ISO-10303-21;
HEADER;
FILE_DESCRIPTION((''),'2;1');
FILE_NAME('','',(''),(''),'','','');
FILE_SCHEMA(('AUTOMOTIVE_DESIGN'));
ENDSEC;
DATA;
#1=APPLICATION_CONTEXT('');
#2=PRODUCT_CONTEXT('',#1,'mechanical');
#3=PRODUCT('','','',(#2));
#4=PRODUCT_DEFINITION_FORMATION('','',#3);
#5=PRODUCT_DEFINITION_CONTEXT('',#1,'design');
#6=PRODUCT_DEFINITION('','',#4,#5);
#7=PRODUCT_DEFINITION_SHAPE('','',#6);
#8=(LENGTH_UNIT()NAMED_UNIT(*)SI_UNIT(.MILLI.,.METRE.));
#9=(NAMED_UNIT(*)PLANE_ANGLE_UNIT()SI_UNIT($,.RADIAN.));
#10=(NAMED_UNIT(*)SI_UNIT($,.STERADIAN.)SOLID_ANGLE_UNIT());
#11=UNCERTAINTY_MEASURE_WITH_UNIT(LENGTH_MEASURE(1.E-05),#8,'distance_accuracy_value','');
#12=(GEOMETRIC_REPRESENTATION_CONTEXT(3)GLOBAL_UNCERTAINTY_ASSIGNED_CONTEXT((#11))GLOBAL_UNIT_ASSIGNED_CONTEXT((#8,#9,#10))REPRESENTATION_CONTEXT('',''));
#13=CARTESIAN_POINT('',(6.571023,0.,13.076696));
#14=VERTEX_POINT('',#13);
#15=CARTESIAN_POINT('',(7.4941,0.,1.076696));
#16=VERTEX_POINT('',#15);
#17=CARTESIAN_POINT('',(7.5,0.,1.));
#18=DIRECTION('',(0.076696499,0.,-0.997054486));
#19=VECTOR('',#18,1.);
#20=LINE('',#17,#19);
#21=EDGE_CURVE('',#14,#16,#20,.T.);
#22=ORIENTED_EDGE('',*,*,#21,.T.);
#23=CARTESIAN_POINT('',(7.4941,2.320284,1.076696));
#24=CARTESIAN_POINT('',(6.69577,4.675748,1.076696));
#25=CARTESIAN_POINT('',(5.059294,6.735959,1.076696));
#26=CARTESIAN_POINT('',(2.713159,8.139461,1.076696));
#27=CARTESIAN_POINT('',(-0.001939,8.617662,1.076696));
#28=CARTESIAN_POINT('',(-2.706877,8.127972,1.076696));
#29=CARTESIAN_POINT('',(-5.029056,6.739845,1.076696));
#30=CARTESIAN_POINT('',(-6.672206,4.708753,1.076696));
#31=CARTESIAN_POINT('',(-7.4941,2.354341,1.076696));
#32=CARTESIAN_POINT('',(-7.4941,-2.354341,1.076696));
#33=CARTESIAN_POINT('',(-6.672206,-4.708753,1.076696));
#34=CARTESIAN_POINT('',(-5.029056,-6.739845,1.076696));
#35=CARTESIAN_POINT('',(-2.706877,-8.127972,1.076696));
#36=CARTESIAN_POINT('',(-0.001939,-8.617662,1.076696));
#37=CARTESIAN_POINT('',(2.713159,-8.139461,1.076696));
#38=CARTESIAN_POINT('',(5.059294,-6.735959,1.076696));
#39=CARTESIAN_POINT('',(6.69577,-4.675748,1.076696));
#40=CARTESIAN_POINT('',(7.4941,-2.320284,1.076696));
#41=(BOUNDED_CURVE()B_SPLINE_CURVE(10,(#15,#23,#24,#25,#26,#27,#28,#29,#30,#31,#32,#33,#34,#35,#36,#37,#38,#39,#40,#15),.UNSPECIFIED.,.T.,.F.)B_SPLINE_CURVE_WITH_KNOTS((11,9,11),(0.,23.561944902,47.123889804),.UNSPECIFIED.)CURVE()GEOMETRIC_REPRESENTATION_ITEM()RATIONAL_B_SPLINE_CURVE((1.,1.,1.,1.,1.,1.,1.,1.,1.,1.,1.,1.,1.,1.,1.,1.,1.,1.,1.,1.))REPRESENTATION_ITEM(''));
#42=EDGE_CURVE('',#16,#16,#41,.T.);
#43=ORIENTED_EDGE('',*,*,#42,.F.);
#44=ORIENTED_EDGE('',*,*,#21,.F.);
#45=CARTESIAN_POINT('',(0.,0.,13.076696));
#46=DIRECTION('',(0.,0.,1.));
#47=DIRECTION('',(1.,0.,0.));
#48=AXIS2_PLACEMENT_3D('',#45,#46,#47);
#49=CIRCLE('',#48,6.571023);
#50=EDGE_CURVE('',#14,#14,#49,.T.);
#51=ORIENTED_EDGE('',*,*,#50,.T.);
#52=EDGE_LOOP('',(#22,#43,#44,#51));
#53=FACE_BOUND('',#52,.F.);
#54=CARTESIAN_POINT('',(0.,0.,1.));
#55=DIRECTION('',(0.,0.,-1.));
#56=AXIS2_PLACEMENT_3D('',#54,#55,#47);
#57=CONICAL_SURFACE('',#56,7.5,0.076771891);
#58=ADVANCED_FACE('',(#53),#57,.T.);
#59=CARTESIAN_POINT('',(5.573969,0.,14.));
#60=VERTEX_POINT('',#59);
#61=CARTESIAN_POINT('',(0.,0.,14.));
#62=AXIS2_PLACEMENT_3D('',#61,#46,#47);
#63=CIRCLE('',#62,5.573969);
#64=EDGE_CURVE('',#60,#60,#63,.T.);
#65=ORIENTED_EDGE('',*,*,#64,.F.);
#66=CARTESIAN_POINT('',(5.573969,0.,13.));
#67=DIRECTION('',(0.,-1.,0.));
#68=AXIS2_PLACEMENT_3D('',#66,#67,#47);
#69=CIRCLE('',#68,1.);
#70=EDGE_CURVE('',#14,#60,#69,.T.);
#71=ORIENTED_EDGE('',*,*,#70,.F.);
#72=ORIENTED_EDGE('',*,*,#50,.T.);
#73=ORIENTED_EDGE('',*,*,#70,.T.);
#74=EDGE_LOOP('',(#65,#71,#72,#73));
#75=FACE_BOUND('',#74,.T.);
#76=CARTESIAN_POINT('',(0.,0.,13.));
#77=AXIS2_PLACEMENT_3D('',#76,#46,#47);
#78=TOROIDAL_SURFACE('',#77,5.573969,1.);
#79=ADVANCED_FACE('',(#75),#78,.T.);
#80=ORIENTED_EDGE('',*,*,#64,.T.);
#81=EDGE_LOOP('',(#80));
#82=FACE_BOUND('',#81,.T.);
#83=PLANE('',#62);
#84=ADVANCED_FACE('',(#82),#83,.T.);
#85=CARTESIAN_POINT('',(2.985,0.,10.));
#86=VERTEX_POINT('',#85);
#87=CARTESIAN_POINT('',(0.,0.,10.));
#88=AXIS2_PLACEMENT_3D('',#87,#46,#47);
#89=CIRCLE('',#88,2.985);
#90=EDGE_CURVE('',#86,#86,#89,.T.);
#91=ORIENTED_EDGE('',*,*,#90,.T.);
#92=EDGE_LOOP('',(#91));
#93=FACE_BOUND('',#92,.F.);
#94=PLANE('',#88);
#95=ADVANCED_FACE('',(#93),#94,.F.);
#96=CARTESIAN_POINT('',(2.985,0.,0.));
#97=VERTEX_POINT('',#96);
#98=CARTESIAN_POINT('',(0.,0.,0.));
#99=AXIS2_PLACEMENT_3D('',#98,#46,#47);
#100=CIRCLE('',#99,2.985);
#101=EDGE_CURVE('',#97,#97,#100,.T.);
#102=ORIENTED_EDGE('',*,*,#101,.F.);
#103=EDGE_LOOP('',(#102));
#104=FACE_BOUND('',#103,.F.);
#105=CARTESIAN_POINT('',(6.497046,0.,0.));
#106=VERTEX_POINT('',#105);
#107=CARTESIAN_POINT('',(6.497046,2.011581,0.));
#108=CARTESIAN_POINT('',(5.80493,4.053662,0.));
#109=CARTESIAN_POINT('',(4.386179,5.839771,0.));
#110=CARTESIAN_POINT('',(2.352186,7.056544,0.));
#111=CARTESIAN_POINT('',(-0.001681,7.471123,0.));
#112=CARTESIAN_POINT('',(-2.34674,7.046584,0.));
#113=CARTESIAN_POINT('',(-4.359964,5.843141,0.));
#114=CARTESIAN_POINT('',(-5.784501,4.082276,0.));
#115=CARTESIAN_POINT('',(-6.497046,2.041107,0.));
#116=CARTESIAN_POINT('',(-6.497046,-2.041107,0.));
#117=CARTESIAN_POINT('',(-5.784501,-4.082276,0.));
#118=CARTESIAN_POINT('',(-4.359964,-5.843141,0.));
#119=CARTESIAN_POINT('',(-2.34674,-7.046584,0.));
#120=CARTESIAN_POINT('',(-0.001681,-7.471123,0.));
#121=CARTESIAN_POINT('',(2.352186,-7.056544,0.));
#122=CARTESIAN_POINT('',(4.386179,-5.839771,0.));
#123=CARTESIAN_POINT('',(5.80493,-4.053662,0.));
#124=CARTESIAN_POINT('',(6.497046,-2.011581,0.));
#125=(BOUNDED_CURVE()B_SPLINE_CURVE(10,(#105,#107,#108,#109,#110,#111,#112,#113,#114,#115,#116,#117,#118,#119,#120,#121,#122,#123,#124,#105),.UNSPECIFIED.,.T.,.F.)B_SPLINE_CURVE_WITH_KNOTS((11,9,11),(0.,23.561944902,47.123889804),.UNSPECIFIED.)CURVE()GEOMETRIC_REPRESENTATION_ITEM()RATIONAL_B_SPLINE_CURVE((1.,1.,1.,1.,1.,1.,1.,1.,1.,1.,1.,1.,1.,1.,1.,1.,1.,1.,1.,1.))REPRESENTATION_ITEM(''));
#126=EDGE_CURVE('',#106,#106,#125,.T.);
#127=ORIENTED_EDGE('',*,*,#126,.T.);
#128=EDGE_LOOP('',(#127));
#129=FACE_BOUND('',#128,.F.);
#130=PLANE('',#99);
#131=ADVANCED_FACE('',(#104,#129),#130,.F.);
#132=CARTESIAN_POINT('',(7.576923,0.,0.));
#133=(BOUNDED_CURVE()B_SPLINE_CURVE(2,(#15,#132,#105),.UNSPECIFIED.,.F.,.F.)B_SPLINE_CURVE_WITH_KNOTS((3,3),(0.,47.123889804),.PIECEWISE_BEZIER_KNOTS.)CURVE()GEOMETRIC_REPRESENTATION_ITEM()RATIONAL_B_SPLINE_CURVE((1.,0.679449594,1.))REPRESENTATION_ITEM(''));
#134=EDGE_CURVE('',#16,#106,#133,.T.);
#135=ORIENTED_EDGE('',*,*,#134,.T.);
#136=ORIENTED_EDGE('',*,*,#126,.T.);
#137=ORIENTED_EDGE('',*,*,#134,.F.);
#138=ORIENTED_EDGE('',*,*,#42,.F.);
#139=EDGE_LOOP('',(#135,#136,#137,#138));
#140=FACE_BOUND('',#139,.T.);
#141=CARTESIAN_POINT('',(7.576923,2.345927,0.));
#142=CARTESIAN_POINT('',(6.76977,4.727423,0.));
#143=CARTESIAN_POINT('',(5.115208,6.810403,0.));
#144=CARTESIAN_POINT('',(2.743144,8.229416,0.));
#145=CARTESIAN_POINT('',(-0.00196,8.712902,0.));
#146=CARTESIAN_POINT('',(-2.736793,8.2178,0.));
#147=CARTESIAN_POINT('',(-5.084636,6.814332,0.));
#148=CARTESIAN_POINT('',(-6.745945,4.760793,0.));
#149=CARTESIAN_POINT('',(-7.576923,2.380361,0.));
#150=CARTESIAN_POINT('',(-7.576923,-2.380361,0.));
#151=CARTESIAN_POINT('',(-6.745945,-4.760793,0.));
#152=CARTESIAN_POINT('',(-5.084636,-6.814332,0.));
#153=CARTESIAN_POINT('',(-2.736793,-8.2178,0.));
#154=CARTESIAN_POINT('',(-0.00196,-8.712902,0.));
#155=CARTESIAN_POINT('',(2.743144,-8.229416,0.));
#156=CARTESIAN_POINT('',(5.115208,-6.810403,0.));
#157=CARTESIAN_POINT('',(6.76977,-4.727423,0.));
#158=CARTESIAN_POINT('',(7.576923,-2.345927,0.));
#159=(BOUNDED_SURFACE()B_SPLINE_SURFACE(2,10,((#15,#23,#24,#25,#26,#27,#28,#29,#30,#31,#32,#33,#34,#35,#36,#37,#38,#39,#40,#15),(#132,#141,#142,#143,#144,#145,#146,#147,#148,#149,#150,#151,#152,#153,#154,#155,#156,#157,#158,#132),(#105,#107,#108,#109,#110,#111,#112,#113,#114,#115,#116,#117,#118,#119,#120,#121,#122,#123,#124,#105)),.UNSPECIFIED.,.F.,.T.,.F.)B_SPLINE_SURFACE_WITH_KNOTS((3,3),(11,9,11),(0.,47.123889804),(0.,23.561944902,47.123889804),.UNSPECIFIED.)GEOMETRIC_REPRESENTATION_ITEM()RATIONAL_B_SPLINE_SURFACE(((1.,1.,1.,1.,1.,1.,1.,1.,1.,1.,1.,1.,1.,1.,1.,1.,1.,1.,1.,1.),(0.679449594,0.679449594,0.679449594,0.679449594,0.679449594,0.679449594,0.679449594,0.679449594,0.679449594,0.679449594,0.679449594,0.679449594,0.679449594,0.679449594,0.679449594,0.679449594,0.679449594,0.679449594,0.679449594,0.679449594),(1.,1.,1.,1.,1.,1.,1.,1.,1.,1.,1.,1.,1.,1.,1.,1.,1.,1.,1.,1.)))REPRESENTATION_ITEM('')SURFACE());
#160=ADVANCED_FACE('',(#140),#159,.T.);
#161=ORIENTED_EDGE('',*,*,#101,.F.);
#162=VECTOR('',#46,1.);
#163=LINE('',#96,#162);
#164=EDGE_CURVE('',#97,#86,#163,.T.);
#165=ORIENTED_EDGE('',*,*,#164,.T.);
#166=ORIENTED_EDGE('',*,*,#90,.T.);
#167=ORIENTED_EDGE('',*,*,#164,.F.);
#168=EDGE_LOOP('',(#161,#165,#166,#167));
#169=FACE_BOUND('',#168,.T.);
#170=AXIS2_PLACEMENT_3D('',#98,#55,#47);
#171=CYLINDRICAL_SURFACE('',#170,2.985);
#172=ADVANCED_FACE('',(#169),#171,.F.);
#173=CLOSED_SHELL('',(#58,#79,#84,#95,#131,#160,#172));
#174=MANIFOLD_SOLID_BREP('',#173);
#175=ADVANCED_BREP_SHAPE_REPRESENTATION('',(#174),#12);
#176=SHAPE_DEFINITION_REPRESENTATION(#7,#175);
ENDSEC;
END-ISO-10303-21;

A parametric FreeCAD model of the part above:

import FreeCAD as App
import Part
import Sketcher
from FreeCAD import Vector
Q = App.Units.Quantity


def edges_at(feature, points):
    """Names of the edges that pass closest to the given points."""
    edges = feature.Shape.Edges
    near = lambda p: min(range(len(edges)), key=lambda i: edges[i].distToShape(Part.Vertex(*p))[0])
    return sorted({f"Edge{near(p) + 1}" for p in points})

doc = App.newDocument("Part")
body = doc.addObject("PartDesign::Body", "Body")

# Sketch on XY plane
sketch1 = body.newObject("Sketcher::SketchObject", "Sketch")
sketch1.AttachmentSupport = (doc.getObject("XY_Plane"), [""])
sketch1.MapMode = "FlatFace"
sketch1.addGeometry(Part.Circle(Vector(0, 0, 0), Vector(0, 0, 1), 8), False)
sketch1.addConstraint(Sketcher.Constraint("Coincident", 0, 3, -1, 1))
sketch1.addConstraint(Sketcher.Constraint("Diameter", 0, Q("15 mm")))
pad1 = body.newObject("PartDesign::Pad", "Pad")
pad1.Profile = sketch1
pad1.Length = 14

# Sketch on XY plane
sketch2 = body.newObject("Sketcher::SketchObject", "Sketch001")
sketch2.AttachmentSupport = (doc.getObject("XY_Plane"), [""])
sketch2.MapMode = "FlatFace"
sketch2.addGeometry(Part.Circle(Vector(0, 0, 0), Vector(0, 0, 1), 3), False)
sketch2.addConstraint(Sketcher.Constraint("Coincident", 0, 3, -1, 1))
sketch2.addConstraint(Sketcher.Constraint("Diameter", 0, Q("5.97 mm")))
pocket1 = body.newObject("PartDesign::Pocket", "Pocket")
pocket1.Profile = sketch2
pocket1.Length = 10
pocket1.Reversed = True
doc.recompute()

chamfer = body.newObject("PartDesign::Chamfer", "Chamfer")
chamfer.Base = (pocket1, edges_at(pocket1, [(-7.5, 0, 14)]))
chamfer.ChamferType = "Two distances"
chamfer.Size = 1
chamfer.Size2 = 13
chamfer.FlipDirection = True
doc.recompute()

fillet = body.newObject("PartDesign::Fillet", "Fillet")
fillet.Base = (chamfer, edges_at(chamfer, [(-6.5, 0, 14), (-7.5, 0, 0)]))
fillet.Radius = 1

doc.recompute()
